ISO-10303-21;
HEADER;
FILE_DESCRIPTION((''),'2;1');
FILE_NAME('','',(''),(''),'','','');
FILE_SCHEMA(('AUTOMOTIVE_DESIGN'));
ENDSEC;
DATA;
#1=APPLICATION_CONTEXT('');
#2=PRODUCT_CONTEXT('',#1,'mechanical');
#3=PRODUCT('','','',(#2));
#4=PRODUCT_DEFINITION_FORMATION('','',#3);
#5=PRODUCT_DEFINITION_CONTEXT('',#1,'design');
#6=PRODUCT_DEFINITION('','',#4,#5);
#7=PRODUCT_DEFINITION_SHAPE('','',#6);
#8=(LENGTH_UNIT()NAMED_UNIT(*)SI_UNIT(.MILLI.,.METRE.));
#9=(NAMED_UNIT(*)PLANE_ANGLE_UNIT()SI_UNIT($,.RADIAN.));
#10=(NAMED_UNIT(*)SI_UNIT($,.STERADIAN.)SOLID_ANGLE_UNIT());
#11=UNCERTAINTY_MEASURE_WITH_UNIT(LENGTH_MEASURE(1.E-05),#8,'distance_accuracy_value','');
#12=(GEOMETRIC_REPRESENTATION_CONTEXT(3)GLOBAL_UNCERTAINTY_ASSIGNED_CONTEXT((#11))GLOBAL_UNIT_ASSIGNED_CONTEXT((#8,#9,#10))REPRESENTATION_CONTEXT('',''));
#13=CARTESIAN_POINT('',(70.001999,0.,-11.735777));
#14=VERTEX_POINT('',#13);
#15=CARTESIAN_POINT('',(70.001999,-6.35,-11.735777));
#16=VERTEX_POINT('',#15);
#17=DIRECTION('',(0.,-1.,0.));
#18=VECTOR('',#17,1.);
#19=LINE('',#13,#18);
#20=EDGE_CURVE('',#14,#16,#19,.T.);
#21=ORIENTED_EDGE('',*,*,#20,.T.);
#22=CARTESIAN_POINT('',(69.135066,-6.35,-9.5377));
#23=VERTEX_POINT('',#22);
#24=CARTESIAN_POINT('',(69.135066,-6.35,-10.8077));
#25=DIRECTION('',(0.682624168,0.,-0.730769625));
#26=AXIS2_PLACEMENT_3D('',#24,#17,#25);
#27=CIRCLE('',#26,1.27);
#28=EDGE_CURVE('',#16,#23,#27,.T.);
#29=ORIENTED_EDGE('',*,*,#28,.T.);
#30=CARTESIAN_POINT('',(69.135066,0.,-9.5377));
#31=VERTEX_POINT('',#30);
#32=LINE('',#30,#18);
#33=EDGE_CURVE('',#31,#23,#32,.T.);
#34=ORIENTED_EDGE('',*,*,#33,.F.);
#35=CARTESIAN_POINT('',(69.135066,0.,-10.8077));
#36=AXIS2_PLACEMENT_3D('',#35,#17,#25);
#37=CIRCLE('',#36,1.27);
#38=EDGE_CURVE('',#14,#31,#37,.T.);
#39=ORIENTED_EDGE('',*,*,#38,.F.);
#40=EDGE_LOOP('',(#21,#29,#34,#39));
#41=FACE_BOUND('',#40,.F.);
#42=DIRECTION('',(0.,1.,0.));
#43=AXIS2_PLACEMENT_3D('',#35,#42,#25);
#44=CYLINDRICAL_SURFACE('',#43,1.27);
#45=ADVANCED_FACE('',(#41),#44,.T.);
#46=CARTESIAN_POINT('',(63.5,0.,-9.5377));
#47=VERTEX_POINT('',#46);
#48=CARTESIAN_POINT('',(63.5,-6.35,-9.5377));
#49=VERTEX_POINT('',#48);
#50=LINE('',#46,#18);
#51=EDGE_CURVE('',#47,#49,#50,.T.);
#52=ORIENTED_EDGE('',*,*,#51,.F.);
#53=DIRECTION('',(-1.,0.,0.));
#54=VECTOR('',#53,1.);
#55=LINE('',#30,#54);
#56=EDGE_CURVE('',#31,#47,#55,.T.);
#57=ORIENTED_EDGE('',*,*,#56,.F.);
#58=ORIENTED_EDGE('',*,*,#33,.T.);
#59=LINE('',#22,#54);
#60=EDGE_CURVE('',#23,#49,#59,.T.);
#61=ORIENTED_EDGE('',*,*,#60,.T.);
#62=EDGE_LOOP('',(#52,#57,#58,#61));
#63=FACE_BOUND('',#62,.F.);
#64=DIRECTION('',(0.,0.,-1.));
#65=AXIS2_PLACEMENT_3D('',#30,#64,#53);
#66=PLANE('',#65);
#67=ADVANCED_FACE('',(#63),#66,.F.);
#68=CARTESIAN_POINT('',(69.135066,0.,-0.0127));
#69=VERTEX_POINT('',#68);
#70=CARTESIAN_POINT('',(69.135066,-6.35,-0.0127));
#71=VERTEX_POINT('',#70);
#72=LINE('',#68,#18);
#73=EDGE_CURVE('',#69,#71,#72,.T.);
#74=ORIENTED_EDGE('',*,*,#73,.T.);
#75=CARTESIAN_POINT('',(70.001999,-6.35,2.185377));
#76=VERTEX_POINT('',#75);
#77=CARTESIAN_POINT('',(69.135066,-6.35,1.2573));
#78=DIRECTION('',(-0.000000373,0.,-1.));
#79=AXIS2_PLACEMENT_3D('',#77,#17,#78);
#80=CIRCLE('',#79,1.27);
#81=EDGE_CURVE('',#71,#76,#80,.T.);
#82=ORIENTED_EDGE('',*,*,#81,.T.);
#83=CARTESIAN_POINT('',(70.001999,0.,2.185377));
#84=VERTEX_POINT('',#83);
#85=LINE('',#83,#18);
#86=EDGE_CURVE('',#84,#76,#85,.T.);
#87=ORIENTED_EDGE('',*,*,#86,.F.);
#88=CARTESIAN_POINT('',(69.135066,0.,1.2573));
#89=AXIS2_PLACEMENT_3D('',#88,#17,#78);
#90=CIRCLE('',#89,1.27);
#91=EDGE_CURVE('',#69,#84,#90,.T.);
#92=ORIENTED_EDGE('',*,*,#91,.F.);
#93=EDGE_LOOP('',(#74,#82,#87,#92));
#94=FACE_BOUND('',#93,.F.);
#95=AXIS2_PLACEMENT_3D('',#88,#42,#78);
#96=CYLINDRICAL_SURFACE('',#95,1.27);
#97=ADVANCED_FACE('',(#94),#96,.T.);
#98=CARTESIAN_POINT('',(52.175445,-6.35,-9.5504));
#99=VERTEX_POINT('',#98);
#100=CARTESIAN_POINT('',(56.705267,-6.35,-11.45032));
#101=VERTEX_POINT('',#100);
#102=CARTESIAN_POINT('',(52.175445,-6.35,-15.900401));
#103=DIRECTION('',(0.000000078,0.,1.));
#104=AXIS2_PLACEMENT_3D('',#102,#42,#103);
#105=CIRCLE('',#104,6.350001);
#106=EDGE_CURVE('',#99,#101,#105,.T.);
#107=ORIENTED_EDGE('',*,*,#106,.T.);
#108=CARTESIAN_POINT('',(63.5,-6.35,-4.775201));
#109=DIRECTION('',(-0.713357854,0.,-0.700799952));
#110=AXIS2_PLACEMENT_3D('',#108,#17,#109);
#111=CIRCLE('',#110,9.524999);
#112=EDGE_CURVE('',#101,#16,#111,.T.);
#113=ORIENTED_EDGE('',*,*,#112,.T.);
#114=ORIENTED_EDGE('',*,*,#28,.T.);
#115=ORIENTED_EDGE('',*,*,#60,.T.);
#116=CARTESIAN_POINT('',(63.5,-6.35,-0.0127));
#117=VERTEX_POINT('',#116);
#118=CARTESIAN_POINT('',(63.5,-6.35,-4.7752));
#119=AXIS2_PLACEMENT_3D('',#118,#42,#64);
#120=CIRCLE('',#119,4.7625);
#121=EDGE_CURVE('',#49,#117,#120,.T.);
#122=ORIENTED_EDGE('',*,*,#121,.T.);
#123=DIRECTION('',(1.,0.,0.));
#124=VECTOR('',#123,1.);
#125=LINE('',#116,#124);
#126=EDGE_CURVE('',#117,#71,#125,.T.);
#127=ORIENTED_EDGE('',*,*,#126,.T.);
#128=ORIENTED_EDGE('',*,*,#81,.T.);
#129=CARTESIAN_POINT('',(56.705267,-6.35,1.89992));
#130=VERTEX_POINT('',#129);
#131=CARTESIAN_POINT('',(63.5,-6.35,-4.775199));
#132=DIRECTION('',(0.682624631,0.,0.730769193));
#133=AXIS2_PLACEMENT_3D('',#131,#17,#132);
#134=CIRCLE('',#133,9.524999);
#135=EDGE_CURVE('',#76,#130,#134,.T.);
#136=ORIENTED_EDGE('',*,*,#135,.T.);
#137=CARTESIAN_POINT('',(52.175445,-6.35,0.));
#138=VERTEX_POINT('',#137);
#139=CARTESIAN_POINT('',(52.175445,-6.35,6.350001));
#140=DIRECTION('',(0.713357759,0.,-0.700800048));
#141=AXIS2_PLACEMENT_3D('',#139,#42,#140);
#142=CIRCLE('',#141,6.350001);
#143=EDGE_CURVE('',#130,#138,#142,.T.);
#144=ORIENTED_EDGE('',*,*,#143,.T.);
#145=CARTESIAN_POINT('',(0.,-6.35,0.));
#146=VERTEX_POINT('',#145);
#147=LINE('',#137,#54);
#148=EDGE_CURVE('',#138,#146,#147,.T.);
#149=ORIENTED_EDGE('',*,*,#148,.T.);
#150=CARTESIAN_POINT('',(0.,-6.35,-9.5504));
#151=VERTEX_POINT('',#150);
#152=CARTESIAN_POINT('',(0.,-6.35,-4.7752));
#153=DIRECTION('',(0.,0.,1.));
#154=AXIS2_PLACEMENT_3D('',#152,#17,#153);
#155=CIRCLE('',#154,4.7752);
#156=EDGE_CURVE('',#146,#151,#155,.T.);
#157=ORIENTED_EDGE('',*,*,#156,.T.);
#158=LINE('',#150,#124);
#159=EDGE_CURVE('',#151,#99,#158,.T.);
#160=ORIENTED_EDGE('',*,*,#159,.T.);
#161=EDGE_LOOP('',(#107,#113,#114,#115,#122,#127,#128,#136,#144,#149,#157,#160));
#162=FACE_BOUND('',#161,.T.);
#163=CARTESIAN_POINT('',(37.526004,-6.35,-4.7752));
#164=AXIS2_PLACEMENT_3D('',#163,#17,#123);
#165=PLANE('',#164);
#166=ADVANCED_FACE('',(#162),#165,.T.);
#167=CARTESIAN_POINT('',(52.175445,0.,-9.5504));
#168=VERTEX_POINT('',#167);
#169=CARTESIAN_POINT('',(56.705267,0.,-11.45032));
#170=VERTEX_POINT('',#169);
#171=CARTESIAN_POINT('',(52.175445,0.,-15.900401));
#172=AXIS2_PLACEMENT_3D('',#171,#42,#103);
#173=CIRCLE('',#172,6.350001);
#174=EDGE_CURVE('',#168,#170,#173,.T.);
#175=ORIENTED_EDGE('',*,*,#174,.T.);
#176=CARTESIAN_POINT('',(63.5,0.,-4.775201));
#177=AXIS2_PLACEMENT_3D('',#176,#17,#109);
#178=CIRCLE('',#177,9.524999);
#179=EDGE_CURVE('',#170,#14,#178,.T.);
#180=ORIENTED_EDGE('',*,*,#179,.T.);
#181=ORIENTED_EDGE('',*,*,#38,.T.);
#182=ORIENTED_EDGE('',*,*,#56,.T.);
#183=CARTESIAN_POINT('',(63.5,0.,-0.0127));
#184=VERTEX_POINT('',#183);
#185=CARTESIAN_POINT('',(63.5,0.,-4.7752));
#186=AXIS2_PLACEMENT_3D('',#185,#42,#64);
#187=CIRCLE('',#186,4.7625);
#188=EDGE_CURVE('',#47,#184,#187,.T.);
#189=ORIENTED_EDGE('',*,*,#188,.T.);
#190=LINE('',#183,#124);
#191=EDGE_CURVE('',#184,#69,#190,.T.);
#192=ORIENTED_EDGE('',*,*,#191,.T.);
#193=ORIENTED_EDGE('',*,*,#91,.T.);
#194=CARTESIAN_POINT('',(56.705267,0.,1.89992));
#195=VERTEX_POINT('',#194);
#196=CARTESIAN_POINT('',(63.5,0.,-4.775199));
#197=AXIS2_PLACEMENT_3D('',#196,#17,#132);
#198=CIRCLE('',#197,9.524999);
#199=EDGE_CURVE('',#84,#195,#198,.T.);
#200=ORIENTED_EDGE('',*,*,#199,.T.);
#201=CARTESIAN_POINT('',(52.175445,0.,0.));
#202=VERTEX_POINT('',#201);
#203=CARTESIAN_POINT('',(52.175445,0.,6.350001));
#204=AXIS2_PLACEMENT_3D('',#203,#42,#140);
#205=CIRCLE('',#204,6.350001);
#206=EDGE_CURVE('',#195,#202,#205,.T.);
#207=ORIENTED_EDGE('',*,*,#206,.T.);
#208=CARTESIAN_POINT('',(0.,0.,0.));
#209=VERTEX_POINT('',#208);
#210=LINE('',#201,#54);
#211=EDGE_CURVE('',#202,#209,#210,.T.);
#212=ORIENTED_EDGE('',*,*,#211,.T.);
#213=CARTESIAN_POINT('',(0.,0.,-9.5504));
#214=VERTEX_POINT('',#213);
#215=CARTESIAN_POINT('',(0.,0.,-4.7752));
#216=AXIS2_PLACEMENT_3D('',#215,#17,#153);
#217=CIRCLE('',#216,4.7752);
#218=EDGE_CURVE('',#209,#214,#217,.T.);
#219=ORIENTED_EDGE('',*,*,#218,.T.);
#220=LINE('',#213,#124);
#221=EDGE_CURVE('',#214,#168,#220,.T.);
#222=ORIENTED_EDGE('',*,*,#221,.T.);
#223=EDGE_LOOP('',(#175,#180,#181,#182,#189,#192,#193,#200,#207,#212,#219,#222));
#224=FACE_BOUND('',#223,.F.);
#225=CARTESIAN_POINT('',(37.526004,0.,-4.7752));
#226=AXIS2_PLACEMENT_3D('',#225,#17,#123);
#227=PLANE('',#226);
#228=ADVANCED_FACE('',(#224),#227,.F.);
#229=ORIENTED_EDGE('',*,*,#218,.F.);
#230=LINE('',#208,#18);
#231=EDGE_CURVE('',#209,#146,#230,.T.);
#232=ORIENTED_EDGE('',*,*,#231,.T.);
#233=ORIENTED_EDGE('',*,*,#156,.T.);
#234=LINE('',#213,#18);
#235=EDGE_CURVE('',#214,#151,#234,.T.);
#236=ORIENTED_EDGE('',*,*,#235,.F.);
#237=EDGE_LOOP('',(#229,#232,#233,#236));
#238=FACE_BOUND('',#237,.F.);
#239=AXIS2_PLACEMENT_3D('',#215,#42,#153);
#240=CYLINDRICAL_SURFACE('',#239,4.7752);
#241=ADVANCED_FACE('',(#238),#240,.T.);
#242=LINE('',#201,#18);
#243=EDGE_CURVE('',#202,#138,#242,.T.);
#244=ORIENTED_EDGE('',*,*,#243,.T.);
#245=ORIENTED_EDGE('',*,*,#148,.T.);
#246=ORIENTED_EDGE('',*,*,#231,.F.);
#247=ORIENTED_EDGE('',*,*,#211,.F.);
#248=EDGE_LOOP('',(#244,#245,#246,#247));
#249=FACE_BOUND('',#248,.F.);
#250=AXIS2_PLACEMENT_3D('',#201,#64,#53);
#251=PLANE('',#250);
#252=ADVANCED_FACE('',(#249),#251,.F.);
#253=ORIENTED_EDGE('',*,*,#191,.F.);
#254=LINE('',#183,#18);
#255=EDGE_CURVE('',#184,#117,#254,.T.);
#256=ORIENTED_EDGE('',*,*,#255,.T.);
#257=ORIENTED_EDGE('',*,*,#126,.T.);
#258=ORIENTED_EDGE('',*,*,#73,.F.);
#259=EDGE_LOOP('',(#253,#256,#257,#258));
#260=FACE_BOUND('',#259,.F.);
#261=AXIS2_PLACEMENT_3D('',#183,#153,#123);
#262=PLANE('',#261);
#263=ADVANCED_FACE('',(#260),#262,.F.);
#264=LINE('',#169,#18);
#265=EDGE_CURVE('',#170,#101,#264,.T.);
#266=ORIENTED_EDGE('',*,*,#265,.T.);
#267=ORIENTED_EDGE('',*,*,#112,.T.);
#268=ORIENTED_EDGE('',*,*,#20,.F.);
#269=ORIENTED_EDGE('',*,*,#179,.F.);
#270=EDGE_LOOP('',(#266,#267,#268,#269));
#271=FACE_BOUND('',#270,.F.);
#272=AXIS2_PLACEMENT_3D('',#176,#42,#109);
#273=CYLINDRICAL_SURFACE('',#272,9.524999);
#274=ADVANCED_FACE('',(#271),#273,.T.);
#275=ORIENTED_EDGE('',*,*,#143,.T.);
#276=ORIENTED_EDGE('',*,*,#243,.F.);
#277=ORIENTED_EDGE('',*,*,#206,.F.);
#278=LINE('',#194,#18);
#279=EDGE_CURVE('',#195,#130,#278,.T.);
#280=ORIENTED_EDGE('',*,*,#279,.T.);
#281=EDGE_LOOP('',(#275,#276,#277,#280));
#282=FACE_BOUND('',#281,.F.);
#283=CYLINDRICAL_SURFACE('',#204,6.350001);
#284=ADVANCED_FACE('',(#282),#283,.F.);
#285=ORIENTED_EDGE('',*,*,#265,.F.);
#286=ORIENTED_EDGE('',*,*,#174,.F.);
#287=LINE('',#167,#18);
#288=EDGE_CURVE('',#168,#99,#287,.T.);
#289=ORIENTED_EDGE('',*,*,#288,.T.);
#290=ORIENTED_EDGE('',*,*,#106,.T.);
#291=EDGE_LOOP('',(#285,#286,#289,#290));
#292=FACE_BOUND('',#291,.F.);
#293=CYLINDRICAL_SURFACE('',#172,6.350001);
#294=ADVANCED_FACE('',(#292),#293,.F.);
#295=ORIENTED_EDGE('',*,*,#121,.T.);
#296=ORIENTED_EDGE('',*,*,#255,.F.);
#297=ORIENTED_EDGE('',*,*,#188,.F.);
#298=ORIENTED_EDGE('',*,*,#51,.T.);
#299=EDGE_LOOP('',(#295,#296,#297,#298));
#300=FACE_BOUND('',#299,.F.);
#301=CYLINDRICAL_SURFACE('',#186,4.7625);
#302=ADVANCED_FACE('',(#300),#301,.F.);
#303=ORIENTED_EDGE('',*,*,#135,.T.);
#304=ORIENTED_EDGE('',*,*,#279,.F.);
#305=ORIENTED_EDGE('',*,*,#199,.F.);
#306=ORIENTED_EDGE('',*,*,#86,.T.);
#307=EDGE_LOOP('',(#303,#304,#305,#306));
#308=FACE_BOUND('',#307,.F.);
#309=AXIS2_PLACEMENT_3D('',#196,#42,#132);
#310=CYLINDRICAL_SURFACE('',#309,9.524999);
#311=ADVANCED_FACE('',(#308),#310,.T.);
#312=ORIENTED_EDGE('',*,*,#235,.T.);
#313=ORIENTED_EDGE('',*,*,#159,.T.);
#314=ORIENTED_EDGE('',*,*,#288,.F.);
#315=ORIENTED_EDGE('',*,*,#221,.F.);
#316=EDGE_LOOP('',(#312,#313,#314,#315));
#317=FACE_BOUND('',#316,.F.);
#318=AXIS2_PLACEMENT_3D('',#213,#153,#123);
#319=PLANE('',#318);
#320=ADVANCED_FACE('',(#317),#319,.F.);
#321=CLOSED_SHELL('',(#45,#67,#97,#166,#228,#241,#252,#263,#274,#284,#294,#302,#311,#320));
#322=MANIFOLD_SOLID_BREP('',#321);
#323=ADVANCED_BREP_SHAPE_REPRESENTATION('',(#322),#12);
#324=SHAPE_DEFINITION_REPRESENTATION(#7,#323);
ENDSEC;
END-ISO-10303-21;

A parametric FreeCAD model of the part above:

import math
import FreeCAD as App
import Part
import Sketcher
from FreeCAD import Vector
Q = App.Units.Quantity

doc = App.newDocument("Part")
body = doc.addObject("PartDesign::Body", "Body")

sketch1 = body.newObject("Sketcher::SketchObject", "Sketch")
sketch1.AttachmentSupport = (doc.getObject("XZ_Plane"), [""])
sketch1.MapMode = "FlatFace"
sketch1.addGeometry(Part.LineSegment(Vector(52.2, 0, 0), Vector(0, 0, 0)), False)
sketch1.addGeometry(Part.ArcOfCircle(Part.Circle(Vector(0, -4.8, 0), Vector(0, 0, 1), 4.8), math.radians(90), math.radians(270)), False)
sketch1.addGeometry(Part.LineSegment(Vector(0, -9.6, 0), Vector(52.2, -9.6, 0)), False)
sketch1.addGeometry(Part.ArcOfCircle(Part.Circle(Vector(52.2, -15.9, 0), Vector(0, 0, 1), 6.4), math.radians(44), math.radians(90)), False)
sketch1.addGeometry(Part.ArcOfCircle(Part.Circle(Vector(63.5, -4.8, 0), Vector(0, 0, 1), 9.5), math.radians(-136), math.radians(-47)), False)
sketch1.addGeometry(Part.ArcOfCircle(Part.Circle(Vector(69.1, -10.8, 0), Vector(0, 0, 1), 1.3), math.radians(-47), math.radians(90)), False)
sketch1.addGeometry(Part.LineSegment(Vector(69.1, -9.5, 0), Vector(63.5, -9.5, 0)), False)
sketch1.addGeometry(Part.ArcOfCircle(Part.Circle(Vector(63.5, -4.8, 0), Vector(0, 0, 1), 4.8), math.radians(90), math.radians(270)), False)
sketch1.addGeometry(Part.LineSegment(Vector(63.5, 0, 0), Vector(69.1, 0, 0)), False)
sketch1.addGeometry(Part.ArcOfCircle(Part.Circle(Vector(69.1, 1.3, 0), Vector(0, 0, 1), 1.3), math.radians(-90), math.radians(47)), False)
sketch1.addGeometry(Part.ArcOfCircle(Part.Circle(Vector(63.5, -4.8, 0), Vector(0, 0, 1), 9.5), math.radians(47), math.radians(136)), False)
sketch1.addGeometry(Part.ArcOfCircle(Part.Circle(Vector(52.2, 6.4, 0), Vector(0, 0, 1), 6.4), math.radians(-90), math.radians(-44)), False)
sketch1.addConstraint(Sketcher.Constraint("Tangent", 0, 2, 1, 1))
sketch1.addConstraint(Sketcher.Constraint("Tangent", 1, 2, 2, 1))
sketch1.addConstraint(Sketcher.Constraint("Tangent", 2, 2, 3, 2))
sketch1.addConstraint(Sketcher.Constraint("Tangent", 3, 1, 4, 1))
sketch1.addConstraint(Sketcher.Constraint("Tangent", 4, 2, 5, 1))
sketch1.addConstraint(Sketcher.Constraint("Tangent", 5, 2, 6, 1))
sketch1.addConstraint(Sketcher.Constraint("Tangent", 6, 2, 7, 2))
sketch1.addConstraint(Sketcher.Constraint("Tangent", 7, 1, 8, 1))
sketch1.addConstraint(Sketcher.Constraint("Tangent", 8, 2, 9, 1))
sketch1.addConstraint(Sketcher.Constraint("Tangent", 9, 2, 10, 1))
sketch1.addConstraint(Sketcher.Constraint("Tangent", 10, 2, 11, 2))
sketch1.addConstraint(Sketcher.Constraint("Tangent", 11, 1, 0, 1))
sketch1.addConstraint(Sketcher.Constraint("Horizontal", 0))
sketch1.addConstraint(Sketcher.Constraint("Horizontal", 2))
sketch1.addConstraint(Sketcher.Constraint("Horizontal", 6))
sketch1.addConstraint(Sketcher.Constraint("Horizontal", 8))
sketch1.addConstraint(Sketcher.Constraint("Coincident", 0, 2, -1, 1))
sketch1.addConstraint(Sketcher.Constraint("Coincident", 7, 3, 4, 3))
sketch1.addConstraint(Sketcher.Constraint("Coincident", 10, 3, 4, 3))
sketch1.addConstraint(Sketcher.Constraint("Equal", 5, 9))
sketch1.addConstraint(Sketcher.Constraint("Equal", 4, 10))
sketch1.addConstraint(Sketcher.Constraint("Equal", 3, 11))
sketch1.addConstraint(Sketcher.Constraint("Horizontal", 1, 3, 4, 3))
sketch1.addConstraint(Sketcher.Constraint("Radius", 3, Q("0.25 in")))
sketch1.addConstraint(Sketcher.Constraint("Radius", 5, Q("0.05 in")))
sketch1.addConstraint(Sketcher.Constraint("Radius", 1, Q("0.188 in")))
sketch1.addConstraint(Sketcher.Constraint("Radius", 4, Q("0.375 in")))
sketch1.addConstraint(Sketcher.Constraint("Radius", 7, Q("0.1875 in")))
sketch1.addConstraint(Sketcher.Constraint("DistanceX", -1, 1, 4, 3, Q("2.5 in")))
pad1 = body.newObject("PartDesign::Pad", "Pad")
pad1.Profile = sketch1
pad1.Length = Q("0.25 in")

doc.recompute()
